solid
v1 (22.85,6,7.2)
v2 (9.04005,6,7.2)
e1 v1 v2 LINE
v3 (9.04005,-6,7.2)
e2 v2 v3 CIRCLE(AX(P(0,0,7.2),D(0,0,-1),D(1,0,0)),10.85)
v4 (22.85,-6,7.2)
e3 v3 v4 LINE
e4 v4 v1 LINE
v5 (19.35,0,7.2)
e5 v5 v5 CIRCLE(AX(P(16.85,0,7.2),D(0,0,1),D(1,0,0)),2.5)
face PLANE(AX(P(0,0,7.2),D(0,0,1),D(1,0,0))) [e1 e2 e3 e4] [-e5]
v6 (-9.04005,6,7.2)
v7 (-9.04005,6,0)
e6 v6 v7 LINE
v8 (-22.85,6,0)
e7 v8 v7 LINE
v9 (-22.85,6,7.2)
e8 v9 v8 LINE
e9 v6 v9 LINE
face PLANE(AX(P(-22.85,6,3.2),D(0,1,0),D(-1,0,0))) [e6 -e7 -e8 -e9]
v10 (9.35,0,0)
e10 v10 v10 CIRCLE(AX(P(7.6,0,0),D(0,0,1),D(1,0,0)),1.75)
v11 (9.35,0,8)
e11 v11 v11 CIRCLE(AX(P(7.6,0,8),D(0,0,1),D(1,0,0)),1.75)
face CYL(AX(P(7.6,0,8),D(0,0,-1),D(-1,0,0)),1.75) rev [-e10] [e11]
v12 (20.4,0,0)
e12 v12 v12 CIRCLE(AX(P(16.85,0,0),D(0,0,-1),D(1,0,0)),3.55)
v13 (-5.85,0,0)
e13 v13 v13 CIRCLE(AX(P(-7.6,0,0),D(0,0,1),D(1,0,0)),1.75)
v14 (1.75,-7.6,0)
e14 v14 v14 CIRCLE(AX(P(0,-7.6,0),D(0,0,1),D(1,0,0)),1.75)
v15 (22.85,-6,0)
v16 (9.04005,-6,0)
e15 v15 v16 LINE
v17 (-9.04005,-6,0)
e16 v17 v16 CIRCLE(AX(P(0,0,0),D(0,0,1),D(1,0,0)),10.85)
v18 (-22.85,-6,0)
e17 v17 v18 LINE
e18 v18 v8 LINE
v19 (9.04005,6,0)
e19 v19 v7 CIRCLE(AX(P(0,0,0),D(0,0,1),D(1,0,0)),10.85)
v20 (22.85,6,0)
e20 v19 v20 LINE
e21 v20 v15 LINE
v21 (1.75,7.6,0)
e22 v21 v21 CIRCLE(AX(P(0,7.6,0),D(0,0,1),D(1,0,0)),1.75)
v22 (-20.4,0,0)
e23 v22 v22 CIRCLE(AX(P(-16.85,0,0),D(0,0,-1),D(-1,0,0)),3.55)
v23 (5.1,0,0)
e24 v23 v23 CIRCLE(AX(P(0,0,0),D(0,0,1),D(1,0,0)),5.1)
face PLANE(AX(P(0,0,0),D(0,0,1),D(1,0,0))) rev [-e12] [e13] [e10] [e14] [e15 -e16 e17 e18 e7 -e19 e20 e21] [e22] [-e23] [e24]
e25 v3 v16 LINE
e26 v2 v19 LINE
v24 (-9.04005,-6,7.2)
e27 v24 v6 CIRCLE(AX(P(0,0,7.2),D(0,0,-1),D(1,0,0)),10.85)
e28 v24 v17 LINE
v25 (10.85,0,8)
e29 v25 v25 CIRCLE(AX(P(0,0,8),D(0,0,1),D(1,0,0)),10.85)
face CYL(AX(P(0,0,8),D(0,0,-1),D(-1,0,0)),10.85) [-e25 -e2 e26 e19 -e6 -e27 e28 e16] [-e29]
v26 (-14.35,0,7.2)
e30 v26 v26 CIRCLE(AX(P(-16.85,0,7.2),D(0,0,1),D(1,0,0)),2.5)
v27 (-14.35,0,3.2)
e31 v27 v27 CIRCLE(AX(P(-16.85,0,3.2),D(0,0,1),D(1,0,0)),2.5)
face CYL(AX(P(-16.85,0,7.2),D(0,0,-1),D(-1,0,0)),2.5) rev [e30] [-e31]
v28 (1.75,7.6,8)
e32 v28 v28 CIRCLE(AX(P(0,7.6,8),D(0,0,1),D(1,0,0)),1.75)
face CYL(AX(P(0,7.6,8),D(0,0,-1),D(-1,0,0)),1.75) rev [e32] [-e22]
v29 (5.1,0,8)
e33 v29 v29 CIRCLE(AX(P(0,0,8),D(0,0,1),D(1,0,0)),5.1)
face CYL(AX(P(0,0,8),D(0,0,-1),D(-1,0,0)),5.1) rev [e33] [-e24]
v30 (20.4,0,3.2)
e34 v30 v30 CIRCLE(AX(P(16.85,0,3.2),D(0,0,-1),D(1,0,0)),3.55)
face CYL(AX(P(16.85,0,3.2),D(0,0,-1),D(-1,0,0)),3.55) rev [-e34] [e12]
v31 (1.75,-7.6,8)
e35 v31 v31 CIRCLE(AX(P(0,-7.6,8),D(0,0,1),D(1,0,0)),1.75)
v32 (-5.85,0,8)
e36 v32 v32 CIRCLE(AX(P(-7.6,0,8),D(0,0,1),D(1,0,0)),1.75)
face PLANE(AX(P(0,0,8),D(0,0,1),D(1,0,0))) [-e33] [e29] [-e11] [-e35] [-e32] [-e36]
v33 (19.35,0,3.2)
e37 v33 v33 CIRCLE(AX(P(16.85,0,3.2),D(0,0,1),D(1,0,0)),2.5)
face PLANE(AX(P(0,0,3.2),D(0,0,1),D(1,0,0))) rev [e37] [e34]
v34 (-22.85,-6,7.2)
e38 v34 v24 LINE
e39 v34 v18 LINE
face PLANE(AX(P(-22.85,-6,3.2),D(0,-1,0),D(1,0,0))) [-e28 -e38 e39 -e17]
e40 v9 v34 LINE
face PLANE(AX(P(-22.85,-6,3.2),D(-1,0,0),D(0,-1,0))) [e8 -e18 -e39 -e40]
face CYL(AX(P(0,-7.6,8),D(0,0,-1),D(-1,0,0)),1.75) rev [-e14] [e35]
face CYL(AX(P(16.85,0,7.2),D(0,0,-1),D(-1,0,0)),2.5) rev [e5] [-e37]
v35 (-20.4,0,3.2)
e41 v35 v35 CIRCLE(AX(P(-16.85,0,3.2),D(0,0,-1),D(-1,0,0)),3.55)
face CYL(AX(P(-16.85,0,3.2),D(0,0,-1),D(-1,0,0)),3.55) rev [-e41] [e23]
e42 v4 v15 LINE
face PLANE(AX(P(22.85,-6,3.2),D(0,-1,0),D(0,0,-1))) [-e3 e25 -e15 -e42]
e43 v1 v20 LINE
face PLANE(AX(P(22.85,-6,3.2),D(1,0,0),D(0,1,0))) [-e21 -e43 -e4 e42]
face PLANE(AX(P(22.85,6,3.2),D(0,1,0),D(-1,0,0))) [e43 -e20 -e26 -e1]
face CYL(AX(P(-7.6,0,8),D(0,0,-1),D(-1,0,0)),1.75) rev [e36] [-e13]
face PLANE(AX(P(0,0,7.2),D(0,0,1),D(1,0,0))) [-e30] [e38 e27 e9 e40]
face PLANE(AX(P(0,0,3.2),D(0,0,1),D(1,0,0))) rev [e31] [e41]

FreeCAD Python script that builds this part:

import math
import FreeCAD as App
import Part
import Sketcher
from FreeCAD import Vector
Q = App.Units.Quantity

doc = App.newDocument("Part")
params = doc.addObject("Spreadsheet::Sheet", "Params")
for row, (alias, value) in enumerate([
    ("sketch1_diameter", "21.7 mm"),
    ("sketch1_diameter2", "3.5 mm"),
    ("sketch1_diameter3", "10.2 mm"),
    ("pad1_length", "8 mm"),
    ("sketch2_diameter", "7.1 mm"),
    ("sketch2_height", "12 mm"),
    ("sketch2_radius", "10.85 mm"),
    ("pad2_length", "3.2 mm"),
    ("sketch3_diameter", "5 mm"),
    ("sketch3_height", "12 mm"),
    ("sketch3_radius", "10.85 mm"),
    ("pad3_length", "4 mm"),
], start=1):
    params.set(f"A{row}", alias)
    params.set(f"B{row}", "=" + value)
    params.setAlias(f"B{row}", alias)

body = doc.addObject("PartDesign::Body", "Body")

# Sketch on XY plane
sketch1 = doc.addObject("Sketcher::SketchObject", "Sketch")
body.addObject(sketch1)
sketch1.AttachmentSupport = (doc.XY_Plane, [""])
sketch1.MapMode = "FlatFace"
sketch1.addGeometry(Part.Circle(Vector(0, 0, 0), Vector(0, 0, 1), 10.8), False)
sketch1.addGeometry(Part.Circle(Vector(0, -7.6, 0), Vector(0, 0, 1), 1.8), False)
sketch1.addGeometry(Part.Circle(Vector(-7.6, 0, 0), Vector(0, 0, 1), 1.8), False)
sketch1.addGeometry(Part.Circle(Vector(0, 0, 0), Vector(0, 0, 1), 5.1), False)
sketch1.addGeometry(Part.Circle(Vector(0, 7.6, 0), Vector(0, 0, 1), 1.8), False)
sketch1.addGeometry(Part.Circle(Vector(7.6, 0, 0), Vector(0, 0, 1), 1.8), False)
sketch1.addConstraint(Sketcher.Constraint("Coincident", 0, 3, -1, 1))
sketch1.addConstraint(Sketcher.Constraint("Coincident", 3, 3, -1, 1))
sketch1.addConstraint(Sketcher.Constraint("Equal", 1, 2))
sketch1.addConstraint(Sketcher.Constraint("Equal", 2, 4))
sketch1.addConstraint(Sketcher.Constraint("Equal", 4, 5))
sketch1.addConstraint(Sketcher.Constraint("Symmetric", 1, 3, 4, 3, -1, 1))
sketch1.addConstraint(Sketcher.Constraint("Symmetric", 2, 3, 5, 3, -1, 1))
sketch1.addConstraint(Sketcher.Constraint("PointOnObject", 1, 3, -2))
sketch1.addConstraint(Sketcher.Constraint("PointOnObject", 2, 3, -1))
sketch1.addConstraint(Sketcher.Constraint("Diameter", 0, Q("21.7 mm")))
sketch1.addConstraint(Sketcher.Constraint("Diameter", 1, Q("3.5 mm")))
sketch1.addConstraint(Sketcher.Constraint("Diameter", 3, Q("10.2 mm")))
sketch1.addConstraint(Sketcher.Constraint("DistanceY", 1, 3, -1, 1, Q("7.6 mm")))
sketch1.addConstraint(Sketcher.Constraint("DistanceX", 2, 3, -1, 1, Q("7.6 mm")))
sketch1.setExpression("Constraints[9]", "Params.sketch1_diameter")
sketch1.setExpression("Constraints[10]", "Params.sketch1_diameter2")
sketch1.setExpression("Constraints[11]", "Params.sketch1_diameter3")
pad1 = doc.addObject("PartDesign::Pad", "Pad")
body.addObject(pad1)
pad1.Profile = sketch1
pad1.setExpression("Length", "Params.pad1_length")

# Sketch on XY plane
sketch2 = doc.addObject("Sketcher::SketchObject", "Sketch001")
body.addObject(sketch2)
sketch2.AttachmentSupport = (doc.XY_Plane, [""])
sketch2.MapMode = "FlatFace"
sketch2.addGeometry(Part.LineSegment(Vector(22.9, 6, 0), Vector(22.9, -6, 0)), False)
sketch2.addGeometry(Part.LineSegment(Vector(22.9, -6, 0), Vector(9, -6, 0)), False)
sketch2.addGeometry(Part.ArcOfCircle(Part.Circle(Vector(0, 0, 0), Vector(0, 0, 1), 10.9), math.radians(-34), math.radians(34)), False)
sketch2.addGeometry(Part.LineSegment(Vector(9, 6, 0), Vector(22.9, 6, 0)), False)
sketch2.addGeometry(Part.Circle(Vector(16.9, 0, 0), Vector(0, 0, 1), 3.5), False)
sketch2.addGeometry(Part.LineSegment(Vector(-22.9, -6, 0), Vector(-22.9, 6, 0)), False)
sketch2.addGeometry(Part.LineSegment(Vector(-22.9, 6, 0), Vector(-9, 6, 0)), False)
sketch2.addGeometry(Part.ArcOfCircle(Part.Circle(Vector(0, 0, 0), Vector(0, 0, 1), 10.9), math.radians(146), math.radians(214)), False)
sketch2.addGeometry(Part.LineSegment(Vector(-9, -6, 0), Vector(-22.9, -6, 0)), False)
sketch2.addGeometry(Part.Circle(Vector(-16.9, 0, 0), Vector(0, 0, 1), 3.5), False)
sketch2.addConstraint(Sketcher.Constraint("Coincident", 0, 2, 1, 1))
sketch2.addConstraint(Sketcher.Constraint("Coincident", 1, 2, 2, 1))
sketch2.addConstraint(Sketcher.Constraint("Coincident", 2, 2, 3, 1))
sketch2.addConstraint(Sketcher.Constraint("Coincident", 3, 2, 0, 1))
sketch2.addConstraint(Sketcher.Constraint("Coincident", 5, 2, 6, 1))
sketch2.addConstraint(Sketcher.Constraint("Coincident", 6, 2, 7, 1))
sketch2.addConstraint(Sketcher.Constraint("Coincident", 7, 2, 8, 1))
sketch2.addConstraint(Sketcher.Constraint("Coincident", 8, 2, 5, 1))
sketch2.addConstraint(Sketcher.Constraint("Vertical", 0))
sketch2.addConstraint(Sketcher.Constraint("Horizontal", 1))
sketch2.addConstraint(Sketcher.Constraint("Horizontal", 3))
sketch2.addConstraint(Sketcher.Constraint("Vertical", 5))
sketch2.addConstraint(Sketcher.Constraint("Horizontal", 6))
sketch2.addConstraint(Sketcher.Constraint("Horizontal", 8))
sketch2.addConstraint(Sketcher.Constraint("Coincident", 2, 3, -1, 1))
sketch2.addConstraint(Sketcher.Constraint("Coincident", 7, 3, -1, 1))
sketch2.addConstraint(Sketcher.Constraint("Equal", 2, 7))
sketch2.addConstraint(Sketcher.Constraint("Equal", 4, 9))
sketch2.addConstraint(Sketcher.Constraint("Symmetric", 4, 3, 9, 3, -1, 1))
sketch2.addConstraint(Sketcher.Constraint("Symmetric", 0, 2, 5, 2, -1, 1))
sketch2.addConstraint(Sketcher.Constraint("PointOnObject", 4, 3, -1))
sketch2.addConstraint(Sketcher.Constraint("Horizontal", 3, 2, 5, 2))
sketch2.addConstraint(Sketcher.Constraint("Horizontal", 1, 2, 7, 2))
sketch2.addConstraint(Sketcher.Constraint("Diameter", 4, Q("7.1 mm")))
sketch2.addConstraint(Sketcher.Constraint("DistanceY", 0, 2, 0, 1, Q("12 mm")))
sketch2.addConstraint(Sketcher.Constraint("Radius", 2, Q("10.85 mm")))
sketch2.addConstraint(Sketcher.Constraint("DistanceX", 4, 3, 0, 2, Q("6 mm")))
sketch2.addConstraint(Sketcher.Constraint("DistanceX", 9, 3, 4, 3, Q("33.7 mm")))
sketch2.setExpression("Constraints[23]", "Params.sketch2_diameter")
sketch2.setExpression("Constraints[24]", "Params.sketch2_height")
sketch2.setExpression("Constraints[25]", "Params.sketch2_radius")
pad2 = doc.addObject("PartDesign::Pad", "Pad001")
body.addObject(pad2)
pad2.Profile = sketch2
pad2.setExpression("Length", "Params.pad2_length")

# Sketch on XY plane
sketch3 = doc.addObject("Sketcher::SketchObject", "Sketch002")
body.addObject(sketch3)
sketch3.AttachmentSupport = (doc.XY_Plane, [""])
sketch3.MapMode = "FlatFace"
sketch3.AttachmentOffset = App.Placement(Vector(0, 0, 3.2), App.Rotation())
sketch3.addGeometry(Part.LineSegment(Vector(-9, 6, 0), Vector(-22.9, 6, 0)), False)
sketch3.addGeometry(Part.LineSegment(Vector(-22.9, 6, 0), Vector(-22.9, -6, 0)), False)
sketch3.addGeometry(Part.LineSegment(Vector(-22.9, -6, 0), Vector(-9, -6, 0)), False)
sketch3.addGeometry(Part.ArcOfCircle(Part.Circle(Vector(0, 0, 0), Vector(0, 0, 1), 10.9), math.radians(146), math.radians(214)), False)
sketch3.addGeometry(Part.Circle(Vector(-16.9, 0, 0), Vector(0, 0, 1), 2.5), False)
sketch3.addGeometry(Part.LineSegment(Vector(9, -6, 0), Vector(22.9, -6, 0)), False)
sketch3.addGeometry(Part.LineSegment(Vector(22.9, -6, 0), Vector(22.9, 6, 0)), False)
sketch3.addGeometry(Part.LineSegment(Vector(22.9, 6, 0), Vector(9, 6, 0)), False)
sketch3.addGeometry(Part.ArcOfCircle(Part.Circle(Vector(0, 0, 0), Vector(0, 0, 1), 10.9), math.radians(-34), math.radians(34)), False)
sketch3.addGeometry(Part.Circle(Vector(16.9, 0, 0), Vector(0, 0, 1), 2.5), False)
sketch3.addConstraint(Sketcher.Constraint("Coincident", 0, 2, 1, 1))
sketch3.addConstraint(Sketcher.Constraint("Coincident", 1, 2, 2, 1))
sketch3.addConstraint(Sketcher.Constraint("Coincident", 2, 2, 3, 2))
sketch3.addConstraint(Sketcher.Constraint("Coincident", 3, 1, 0, 1))
sketch3.addConstraint(Sketcher.Constraint("Coincident", 5, 2, 6, 1))
sketch3.addConstraint(Sketcher.Constraint("Coincident", 6, 2, 7, 1))
sketch3.addConstraint(Sketcher.Constraint("Coincident", 7, 2, 8, 2))
sketch3.addConstraint(Sketcher.Constraint("Coincident", 8, 1, 5, 1))
sketch3.addConstraint(Sketcher.Constraint("Horizontal", 0))
sketch3.addConstraint(Sketcher.Constraint("Vertical", 1))
sketch3.addConstraint(Sketcher.Constraint("Horizontal", 2))
sketch3.addConstraint(Sketcher.Constraint("Horizontal", 5))
sketch3.addConstraint(Sketcher.Constraint("Vertical", 6))
sketch3.addConstraint(Sketcher.Constraint("Horizontal", 7))
sketch3.addConstraint(Sketcher.Constraint("Coincident", 3, 3, -1, 1))
sketch3.addConstraint(Sketcher.Constraint("Coincident", 8, 3, -1, 1))
sketch3.addConstraint(Sketcher.Constraint("Equal", 3, 8))
sketch3.addConstraint(Sketcher.Constraint("Equal", 4, 9))
sketch3.addConstraint(Sketcher.Constraint("Symmetric", 4, 3, 9, 3, -1, 1))
sketch3.addConstraint(Sketcher.Constraint("Symmetric", 0, 2, 5, 2, -1, 1))
sketch3.addConstraint(Sketcher.Constraint("PointOnObject", 4, 3, -1))
sketch3.addConstraint(Sketcher.Constraint("Horizontal", 2, 2, 5, 2))
sketch3.addConstraint(Sketcher.Constraint("Horizontal", 3, 1, 6, 2))
sketch3.addConstraint(Sketcher.Constraint("Diameter", 4, Q("5 mm")))
sketch3.addConstraint(Sketcher.Constraint("DistanceY", 1, 2, 1, 1, Q("12 mm")))
sketch3.addConstraint(Sketcher.Constraint("Radius", 3, Q("10.85 mm")))
sketch3.addConstraint(Sketcher.Constraint("DistanceX", 0, 2, 4, 3, Q("6 mm")))
sketch3.addConstraint(Sketcher.Constraint("DistanceX", 4, 3, 9, 3, Q("33.7 mm")))
sketch3.setExpression("Constraints[23]", "Params.sketch3_diameter")
sketch3.setExpression("Constraints[24]", "Params.sketch3_height")
sketch3.setExpression("Constraints[25]", "Params.sketch3_radius")
pad3 = doc.addObject("PartDesign::Pad", "Pad002")
body.addObject(pad3)
pad3.Profile = sketch3
pad3.setExpression("Length", "Params.pad3_length")

doc.recompute()
